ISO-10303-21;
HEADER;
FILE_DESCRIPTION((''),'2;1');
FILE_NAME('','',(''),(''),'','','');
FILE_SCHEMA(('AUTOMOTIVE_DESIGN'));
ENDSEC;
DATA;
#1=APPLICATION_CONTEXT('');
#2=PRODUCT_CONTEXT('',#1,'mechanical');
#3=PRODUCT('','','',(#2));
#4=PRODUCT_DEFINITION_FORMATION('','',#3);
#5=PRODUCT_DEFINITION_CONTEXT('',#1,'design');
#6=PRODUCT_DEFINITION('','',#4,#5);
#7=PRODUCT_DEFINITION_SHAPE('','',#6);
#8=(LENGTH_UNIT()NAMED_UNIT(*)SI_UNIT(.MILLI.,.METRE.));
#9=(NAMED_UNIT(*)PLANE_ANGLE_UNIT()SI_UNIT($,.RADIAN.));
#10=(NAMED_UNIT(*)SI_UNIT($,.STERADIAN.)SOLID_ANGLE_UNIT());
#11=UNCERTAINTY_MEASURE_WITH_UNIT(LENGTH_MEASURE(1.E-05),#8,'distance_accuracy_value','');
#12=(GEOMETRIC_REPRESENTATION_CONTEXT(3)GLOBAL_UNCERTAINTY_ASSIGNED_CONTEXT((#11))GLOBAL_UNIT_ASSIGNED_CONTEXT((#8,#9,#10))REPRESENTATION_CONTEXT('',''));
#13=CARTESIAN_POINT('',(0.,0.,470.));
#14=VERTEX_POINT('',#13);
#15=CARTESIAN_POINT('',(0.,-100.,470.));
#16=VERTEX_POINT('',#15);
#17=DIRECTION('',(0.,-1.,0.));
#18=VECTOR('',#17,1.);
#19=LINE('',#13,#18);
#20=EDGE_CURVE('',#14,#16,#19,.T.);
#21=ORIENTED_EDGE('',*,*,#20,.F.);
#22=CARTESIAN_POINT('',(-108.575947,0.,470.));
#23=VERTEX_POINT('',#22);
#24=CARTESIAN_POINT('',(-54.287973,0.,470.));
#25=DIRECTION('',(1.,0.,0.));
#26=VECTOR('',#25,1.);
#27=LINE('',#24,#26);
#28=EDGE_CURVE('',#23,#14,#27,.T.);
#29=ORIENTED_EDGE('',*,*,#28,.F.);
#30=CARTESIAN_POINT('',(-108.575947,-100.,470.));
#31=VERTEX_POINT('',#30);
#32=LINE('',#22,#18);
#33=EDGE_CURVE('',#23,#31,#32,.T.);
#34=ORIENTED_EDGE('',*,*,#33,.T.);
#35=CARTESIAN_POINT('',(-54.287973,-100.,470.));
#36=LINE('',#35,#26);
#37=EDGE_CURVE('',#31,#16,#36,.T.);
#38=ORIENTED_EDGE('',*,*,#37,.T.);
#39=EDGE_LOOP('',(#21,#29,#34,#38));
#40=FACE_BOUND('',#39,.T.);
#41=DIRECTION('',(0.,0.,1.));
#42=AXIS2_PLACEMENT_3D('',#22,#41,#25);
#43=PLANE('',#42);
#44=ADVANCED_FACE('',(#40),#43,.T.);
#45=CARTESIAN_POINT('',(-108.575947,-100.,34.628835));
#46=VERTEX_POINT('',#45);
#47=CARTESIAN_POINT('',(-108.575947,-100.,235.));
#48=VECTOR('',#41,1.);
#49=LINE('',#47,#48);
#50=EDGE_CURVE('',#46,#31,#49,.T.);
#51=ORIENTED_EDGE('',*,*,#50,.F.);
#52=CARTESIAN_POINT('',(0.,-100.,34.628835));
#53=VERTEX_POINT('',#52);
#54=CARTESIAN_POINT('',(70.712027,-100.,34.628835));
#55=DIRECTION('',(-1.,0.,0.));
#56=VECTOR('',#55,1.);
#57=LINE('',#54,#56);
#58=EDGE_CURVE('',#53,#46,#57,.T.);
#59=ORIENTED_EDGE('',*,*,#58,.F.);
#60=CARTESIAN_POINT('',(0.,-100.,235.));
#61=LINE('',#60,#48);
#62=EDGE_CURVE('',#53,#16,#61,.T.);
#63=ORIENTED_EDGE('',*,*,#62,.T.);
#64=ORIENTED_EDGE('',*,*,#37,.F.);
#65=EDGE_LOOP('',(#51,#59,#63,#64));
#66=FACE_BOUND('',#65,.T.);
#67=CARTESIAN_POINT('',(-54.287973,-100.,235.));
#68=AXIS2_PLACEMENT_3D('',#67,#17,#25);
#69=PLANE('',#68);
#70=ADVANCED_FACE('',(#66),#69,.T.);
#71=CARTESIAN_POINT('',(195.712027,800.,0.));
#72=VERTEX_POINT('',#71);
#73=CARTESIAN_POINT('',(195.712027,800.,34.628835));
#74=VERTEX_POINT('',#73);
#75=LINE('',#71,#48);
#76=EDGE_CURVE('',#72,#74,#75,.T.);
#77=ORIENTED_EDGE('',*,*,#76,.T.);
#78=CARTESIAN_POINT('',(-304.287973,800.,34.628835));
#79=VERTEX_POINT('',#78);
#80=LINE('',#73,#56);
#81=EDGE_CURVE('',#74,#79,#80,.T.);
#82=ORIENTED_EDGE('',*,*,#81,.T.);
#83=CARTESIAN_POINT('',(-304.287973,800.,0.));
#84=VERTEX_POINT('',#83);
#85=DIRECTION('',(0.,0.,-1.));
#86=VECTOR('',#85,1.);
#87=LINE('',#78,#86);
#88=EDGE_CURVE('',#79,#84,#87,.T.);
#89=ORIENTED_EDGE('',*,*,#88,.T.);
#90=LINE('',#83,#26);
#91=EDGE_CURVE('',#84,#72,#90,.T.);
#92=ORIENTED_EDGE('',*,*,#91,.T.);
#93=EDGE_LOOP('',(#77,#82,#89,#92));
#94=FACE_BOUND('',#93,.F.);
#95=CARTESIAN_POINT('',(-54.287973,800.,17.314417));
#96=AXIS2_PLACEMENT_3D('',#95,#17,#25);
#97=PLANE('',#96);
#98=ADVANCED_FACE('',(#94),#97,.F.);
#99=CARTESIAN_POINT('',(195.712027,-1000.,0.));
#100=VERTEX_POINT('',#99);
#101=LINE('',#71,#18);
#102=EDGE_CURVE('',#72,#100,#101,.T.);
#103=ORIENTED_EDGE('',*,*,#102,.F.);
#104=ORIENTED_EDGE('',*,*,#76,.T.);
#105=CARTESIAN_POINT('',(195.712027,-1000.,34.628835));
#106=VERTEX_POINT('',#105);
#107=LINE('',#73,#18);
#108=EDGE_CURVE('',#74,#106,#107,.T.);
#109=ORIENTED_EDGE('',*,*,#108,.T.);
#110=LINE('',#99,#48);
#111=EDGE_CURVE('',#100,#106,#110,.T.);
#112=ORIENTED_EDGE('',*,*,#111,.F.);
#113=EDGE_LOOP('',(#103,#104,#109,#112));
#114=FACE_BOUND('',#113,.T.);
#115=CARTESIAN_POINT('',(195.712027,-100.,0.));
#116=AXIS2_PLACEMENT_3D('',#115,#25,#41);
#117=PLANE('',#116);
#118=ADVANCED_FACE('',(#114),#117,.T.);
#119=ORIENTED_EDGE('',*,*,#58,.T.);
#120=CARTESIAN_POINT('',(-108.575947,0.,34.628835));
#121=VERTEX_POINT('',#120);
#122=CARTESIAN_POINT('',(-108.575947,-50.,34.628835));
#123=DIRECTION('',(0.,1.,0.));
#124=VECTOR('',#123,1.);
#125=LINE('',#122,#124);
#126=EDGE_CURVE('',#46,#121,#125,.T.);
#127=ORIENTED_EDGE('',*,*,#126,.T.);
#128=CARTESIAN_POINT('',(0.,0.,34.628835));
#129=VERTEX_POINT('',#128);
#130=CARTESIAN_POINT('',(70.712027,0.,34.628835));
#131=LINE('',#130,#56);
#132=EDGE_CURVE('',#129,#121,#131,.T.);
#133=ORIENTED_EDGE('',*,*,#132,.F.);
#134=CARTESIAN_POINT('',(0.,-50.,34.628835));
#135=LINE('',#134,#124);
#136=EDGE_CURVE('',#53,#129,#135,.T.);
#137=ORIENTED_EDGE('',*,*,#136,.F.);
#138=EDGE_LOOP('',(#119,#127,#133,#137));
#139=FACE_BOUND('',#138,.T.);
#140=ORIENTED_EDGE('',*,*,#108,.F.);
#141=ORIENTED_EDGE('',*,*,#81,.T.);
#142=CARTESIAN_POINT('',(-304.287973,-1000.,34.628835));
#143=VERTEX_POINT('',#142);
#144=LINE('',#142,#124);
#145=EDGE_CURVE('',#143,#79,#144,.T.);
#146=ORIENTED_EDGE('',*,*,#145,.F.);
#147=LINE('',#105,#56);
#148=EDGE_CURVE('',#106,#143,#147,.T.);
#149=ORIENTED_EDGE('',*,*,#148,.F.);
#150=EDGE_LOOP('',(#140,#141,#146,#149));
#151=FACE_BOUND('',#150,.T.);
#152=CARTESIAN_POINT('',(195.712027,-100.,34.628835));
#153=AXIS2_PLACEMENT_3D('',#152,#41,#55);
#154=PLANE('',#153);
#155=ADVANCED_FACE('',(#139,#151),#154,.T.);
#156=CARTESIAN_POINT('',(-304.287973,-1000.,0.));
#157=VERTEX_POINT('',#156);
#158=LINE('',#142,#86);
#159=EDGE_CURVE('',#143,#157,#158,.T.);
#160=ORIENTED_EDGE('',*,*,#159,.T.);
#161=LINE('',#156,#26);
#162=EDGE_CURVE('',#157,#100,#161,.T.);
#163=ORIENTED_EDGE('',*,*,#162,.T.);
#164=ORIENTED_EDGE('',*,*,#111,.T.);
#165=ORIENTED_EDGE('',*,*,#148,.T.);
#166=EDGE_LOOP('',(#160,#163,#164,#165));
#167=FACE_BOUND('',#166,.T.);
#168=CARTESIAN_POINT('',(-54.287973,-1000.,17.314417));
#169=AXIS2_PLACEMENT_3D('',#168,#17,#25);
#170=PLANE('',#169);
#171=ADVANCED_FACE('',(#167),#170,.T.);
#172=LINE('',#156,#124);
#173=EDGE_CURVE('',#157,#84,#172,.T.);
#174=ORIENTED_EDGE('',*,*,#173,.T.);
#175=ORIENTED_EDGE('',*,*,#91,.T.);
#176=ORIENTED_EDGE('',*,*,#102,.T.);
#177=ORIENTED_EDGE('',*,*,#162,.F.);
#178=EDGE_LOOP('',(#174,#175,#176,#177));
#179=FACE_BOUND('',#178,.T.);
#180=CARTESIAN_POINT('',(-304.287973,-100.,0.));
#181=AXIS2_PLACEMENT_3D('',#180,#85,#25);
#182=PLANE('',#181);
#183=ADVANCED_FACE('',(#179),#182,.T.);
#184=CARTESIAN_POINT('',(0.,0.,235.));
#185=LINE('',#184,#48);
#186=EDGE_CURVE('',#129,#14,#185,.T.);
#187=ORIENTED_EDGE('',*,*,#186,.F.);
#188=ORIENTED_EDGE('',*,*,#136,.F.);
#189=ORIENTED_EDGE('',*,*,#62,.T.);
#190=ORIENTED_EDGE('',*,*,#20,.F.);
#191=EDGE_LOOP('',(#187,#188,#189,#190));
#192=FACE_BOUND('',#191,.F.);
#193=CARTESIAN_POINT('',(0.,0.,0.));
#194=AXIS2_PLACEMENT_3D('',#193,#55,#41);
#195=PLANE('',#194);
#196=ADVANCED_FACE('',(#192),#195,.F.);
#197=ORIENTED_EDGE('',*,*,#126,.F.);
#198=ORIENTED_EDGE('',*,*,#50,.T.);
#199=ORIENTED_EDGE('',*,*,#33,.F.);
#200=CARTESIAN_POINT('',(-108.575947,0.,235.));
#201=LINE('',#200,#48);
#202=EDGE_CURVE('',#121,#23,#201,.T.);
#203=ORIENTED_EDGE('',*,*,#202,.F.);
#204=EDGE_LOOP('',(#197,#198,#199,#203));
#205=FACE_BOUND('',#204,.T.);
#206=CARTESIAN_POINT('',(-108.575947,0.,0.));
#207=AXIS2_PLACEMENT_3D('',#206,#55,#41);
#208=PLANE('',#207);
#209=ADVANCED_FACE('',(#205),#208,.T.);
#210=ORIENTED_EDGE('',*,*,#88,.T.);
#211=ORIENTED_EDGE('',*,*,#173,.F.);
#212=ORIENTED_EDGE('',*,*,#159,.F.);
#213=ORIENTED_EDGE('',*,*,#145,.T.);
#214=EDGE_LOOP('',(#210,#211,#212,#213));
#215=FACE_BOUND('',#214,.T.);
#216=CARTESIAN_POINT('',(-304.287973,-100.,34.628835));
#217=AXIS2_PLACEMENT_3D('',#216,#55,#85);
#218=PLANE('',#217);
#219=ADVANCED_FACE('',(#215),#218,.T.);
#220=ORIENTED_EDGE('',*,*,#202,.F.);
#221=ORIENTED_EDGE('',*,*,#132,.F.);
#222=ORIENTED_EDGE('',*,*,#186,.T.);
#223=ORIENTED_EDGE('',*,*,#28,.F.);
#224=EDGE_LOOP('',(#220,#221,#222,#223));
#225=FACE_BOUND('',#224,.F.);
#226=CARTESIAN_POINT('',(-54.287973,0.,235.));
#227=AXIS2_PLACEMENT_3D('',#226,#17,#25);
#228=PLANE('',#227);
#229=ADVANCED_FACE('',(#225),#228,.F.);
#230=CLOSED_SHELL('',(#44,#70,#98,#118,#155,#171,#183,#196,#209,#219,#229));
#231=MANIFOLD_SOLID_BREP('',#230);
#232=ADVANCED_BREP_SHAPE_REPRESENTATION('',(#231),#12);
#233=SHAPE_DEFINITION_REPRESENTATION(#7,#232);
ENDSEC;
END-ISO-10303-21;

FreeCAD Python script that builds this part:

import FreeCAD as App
import Part
import Sketcher
Q = App.Units.Quantity


def add_polygon(sketch, points):
    """Adds a closed chain of lines whose ends are joined by coincident constraints."""
    first, n = sketch.GeometryCount, len(points)
    for a, b in zip(points, points[1:] + points[:1]):
        sketch.addGeometry(Part.LineSegment(App.Vector(*a, 0), App.Vector(*b, 0)), False)
    for i in range(n):
        sketch.addConstraint(Sketcher.Constraint("Coincident", first + i, 2, first + (i + 1) % n, 1))

doc = App.newDocument("Part")
body = doc.addObject("PartDesign::Body", "Body")

# Sketch on XZ plane
sketch1 = body.newObject("Sketcher::SketchObject", "Sketch")
sketch1.AttachmentSupport = (doc.getObject("XZ_Plane"), [""])
sketch1.MapMode = "FlatFace"
add_polygon(sketch1, [(-109, 470), (-109, 0), (0, 0), (0, 470)])  # lines 0-3
sketch1.addConstraint([
    Sketcher.Constraint("Vertical", 0),
    Sketcher.Constraint("Horizontal", 1),
    Sketcher.Constraint("Vertical", 2),
    Sketcher.Constraint("Horizontal", 3),
    Sketcher.Constraint("Coincident", 1, 2, -1, 1),
    Sketcher.Constraint("DistanceY", 0, 2, 0, 1, Q("470 mm")),
    Sketcher.Constraint("DistanceX", 1, 1, 1, 2, Q("108.575947 mm")),
])
pad1 = body.newObject("PartDesign::Pad", "Pad")
pad1.Profile = sketch1
pad1.Length = 100

# Sketch on XZ plane
sketch2 = body.newObject("Sketcher::SketchObject", "Sketch001")
sketch2.AttachmentSupport = (doc.getObject("XZ_Plane"), [""])
sketch2.MapMode = "FlatFace"
sketch2.AttachmentOffset = App.Placement(App.Vector(0, 0, 100), App.Rotation())
add_polygon(sketch2, [(-304, 0), (196, 0), (196, 35), (-304, 35)])  # lines 0-3
sketch2.addConstraint([
    Sketcher.Constraint("Horizontal", 0),
    Sketcher.Constraint("Vertical", 1),
    Sketcher.Constraint("Horizontal", 2),
    Sketcher.Constraint("Vertical", 3),
    Sketcher.Constraint("PointOnObject", 0, 2, -1),
    Sketcher.Constraint("DistanceX", 0, 1, 0, 2, Q("500 mm")),
    Sketcher.Constraint("DistanceY", 1, 1, 1, 2, Q("34.628835 mm")),
    Sketcher.Constraint("DistanceX", -1, 1, 0, 2, Q("195.712027 mm")),
])
pad2 = body.newObject("PartDesign::Pad", "Pad001")
pad2.Profile = sketch2
pad2.Length = 1800
pad2.Midplane = True

doc.recompute()
